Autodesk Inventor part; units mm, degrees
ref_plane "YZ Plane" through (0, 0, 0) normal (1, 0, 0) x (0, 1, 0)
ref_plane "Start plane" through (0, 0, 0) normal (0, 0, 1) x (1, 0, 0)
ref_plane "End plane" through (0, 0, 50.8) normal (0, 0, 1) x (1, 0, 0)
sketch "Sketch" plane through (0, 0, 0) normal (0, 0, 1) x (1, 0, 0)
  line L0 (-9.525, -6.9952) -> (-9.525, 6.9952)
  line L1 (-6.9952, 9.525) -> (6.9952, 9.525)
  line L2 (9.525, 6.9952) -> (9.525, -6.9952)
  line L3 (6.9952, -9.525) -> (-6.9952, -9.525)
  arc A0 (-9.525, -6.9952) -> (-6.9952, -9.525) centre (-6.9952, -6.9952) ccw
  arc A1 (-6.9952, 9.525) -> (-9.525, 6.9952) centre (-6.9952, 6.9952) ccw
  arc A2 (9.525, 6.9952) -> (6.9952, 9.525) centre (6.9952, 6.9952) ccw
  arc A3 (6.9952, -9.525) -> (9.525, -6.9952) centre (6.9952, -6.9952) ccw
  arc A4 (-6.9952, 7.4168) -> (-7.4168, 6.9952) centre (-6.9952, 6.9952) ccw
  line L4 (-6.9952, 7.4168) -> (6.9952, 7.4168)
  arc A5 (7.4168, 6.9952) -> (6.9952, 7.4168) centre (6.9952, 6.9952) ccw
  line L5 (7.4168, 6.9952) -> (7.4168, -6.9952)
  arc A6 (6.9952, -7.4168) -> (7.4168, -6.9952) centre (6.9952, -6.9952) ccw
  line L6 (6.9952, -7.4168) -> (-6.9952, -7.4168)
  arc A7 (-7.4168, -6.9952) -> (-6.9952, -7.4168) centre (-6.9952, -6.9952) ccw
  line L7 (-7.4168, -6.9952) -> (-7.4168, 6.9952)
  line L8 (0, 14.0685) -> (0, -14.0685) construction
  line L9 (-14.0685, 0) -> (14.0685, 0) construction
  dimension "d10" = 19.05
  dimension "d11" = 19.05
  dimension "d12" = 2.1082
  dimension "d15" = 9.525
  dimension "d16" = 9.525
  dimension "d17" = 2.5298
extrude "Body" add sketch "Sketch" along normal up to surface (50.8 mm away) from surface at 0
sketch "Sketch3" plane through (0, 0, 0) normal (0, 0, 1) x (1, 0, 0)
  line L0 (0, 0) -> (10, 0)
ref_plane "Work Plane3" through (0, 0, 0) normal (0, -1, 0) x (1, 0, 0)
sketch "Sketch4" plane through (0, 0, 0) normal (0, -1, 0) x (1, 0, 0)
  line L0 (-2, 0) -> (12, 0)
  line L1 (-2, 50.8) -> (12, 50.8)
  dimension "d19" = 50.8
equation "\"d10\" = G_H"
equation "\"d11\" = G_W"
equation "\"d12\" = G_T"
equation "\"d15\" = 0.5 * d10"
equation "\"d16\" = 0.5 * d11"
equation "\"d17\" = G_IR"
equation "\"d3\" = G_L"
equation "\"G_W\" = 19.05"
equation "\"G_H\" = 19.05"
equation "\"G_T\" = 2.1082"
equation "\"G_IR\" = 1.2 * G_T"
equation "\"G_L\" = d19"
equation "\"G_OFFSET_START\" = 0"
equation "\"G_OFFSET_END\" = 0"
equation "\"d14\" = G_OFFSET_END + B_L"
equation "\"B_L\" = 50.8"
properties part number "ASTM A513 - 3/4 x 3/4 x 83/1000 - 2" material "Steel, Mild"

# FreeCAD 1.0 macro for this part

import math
import FreeCAD as App
import Part
import Sketcher
Q = App.Units.Quantity

doc = App.newDocument("Part")
body = doc.addObject("PartDesign::Body", "Body")

# Sketch on XY plane
sketch1 = body.newObject("Sketcher::SketchObject", "Sketch")
sketch1.AttachmentSupport = (doc.getObject("XY_Plane"), [""])
sketch1.MapMode = "FlatFace"
sketch1.addGeometry([
    Part.LineSegment(App.Vector(-9.53, 7, 0), App.Vector(-9.53, -7, 0)),  # 0
    Part.ArcOfCircle(Part.Circle(App.Vector(-7, -7, 0), App.Vector(0, 0, 1), 2.53), math.radians(180), math.radians(270)),  # 1
    Part.LineSegment(App.Vector(-7, -9.53, 0), App.Vector(7, -9.53, 0)),  # 2
    Part.ArcOfCircle(Part.Circle(App.Vector(7, -7, 0), App.Vector(0, 0, 1), 2.53), math.radians(-90), math.radians(0)),  # 3
    Part.LineSegment(App.Vector(9.53, -7, 0), App.Vector(9.53, 7, 0)),  # 4
    Part.ArcOfCircle(Part.Circle(App.Vector(7, 7, 0), App.Vector(0, 0, 1), 2.53), math.radians(0), math.radians(90)),  # 5
    Part.LineSegment(App.Vector(7, 9.53, 0), App.Vector(-7, 9.53, 0)),  # 6
    Part.ArcOfCircle(Part.Circle(App.Vector(-7, 7, 0), App.Vector(0, 0, 1), 2.53), math.radians(90), math.radians(180)),  # 7
    Part.ArcOfCircle(Part.Circle(App.Vector(-7, 7, 0), App.Vector(0, 0, 1), 0.42), math.radians(90), math.radians(180)),  # 8
    Part.LineSegment(App.Vector(-7, 7.42, 0), App.Vector(7, 7.42, 0)),  # 9
    Part.ArcOfCircle(Part.Circle(App.Vector(7, 7, 0), App.Vector(0, 0, 1), 0.42), math.radians(0), math.radians(90)),  # 10
    Part.LineSegment(App.Vector(7.42, 7, 0), App.Vector(7.42, -7, 0)),  # 11
    Part.ArcOfCircle(Part.Circle(App.Vector(7, -7, 0), App.Vector(0, 0, 1), 0.42), math.radians(-90), math.radians(0)),  # 12
    Part.LineSegment(App.Vector(7, -7.42, 0), App.Vector(-7, -7.42, 0)),  # 13
    Part.ArcOfCircle(Part.Circle(App.Vector(-7, -7, 0), App.Vector(0, 0, 1), 0.42), math.radians(180), math.radians(270)),  # 14
    Part.LineSegment(App.Vector(-7.42, -7, 0), App.Vector(-7.42, 7, 0)),  # 15
], False)
sketch1.addConstraint([
    Sketcher.Constraint("Tangent", 0, 2, 1, 1),
    Sketcher.Constraint("Tangent", 1, 2, 2, 1),
    Sketcher.Constraint("Tangent", 2, 2, 3, 1),
    Sketcher.Constraint("Tangent", 3, 2, 4, 1),
    Sketcher.Constraint("Tangent", 4, 2, 5, 1),
    Sketcher.Constraint("Tangent", 5, 2, 6, 1),
    Sketcher.Constraint("Tangent", 6, 2, 7, 1),
    Sketcher.Constraint("Tangent", 7, 2, 0, 1),
    Sketcher.Constraint("Tangent", 8, 1, 9, 1),
    Sketcher.Constraint("Tangent", 9, 2, 10, 2),
    Sketcher.Constraint("Tangent", 10, 1, 11, 1),
    Sketcher.Constraint("Tangent", 11, 2, 12, 2),
    Sketcher.Constraint("Tangent", 12, 1, 13, 1),
    Sketcher.Constraint("Tangent", 13, 2, 14, 2),
    Sketcher.Constraint("Tangent", 14, 1, 15, 1),
    Sketcher.Constraint("Tangent", 15, 2, 8, 2),
    Sketcher.Constraint("Vertical", 0),
    Sketcher.Constraint("Horizontal", 2),
    Sketcher.Constraint("Vertical", 4),
    Sketcher.Constraint("Horizontal", 6),
    Sketcher.Constraint("Horizontal", 9),
    Sketcher.Constraint("Vertical", 11),
    Sketcher.Constraint("Horizontal", 13),
    Sketcher.Constraint("Vertical", 15),
    Sketcher.Constraint("Coincident", 8, 3, 7, 3),
    Sketcher.Constraint("Coincident", 10, 3, 5, 3),
    Sketcher.Constraint("Coincident", 12, 3, 3, 3),
    Sketcher.Constraint("Equal", 1, 3),
    Sketcher.Constraint("Equal", 3, 5),
    Sketcher.Constraint("Equal", 5, 7),
    Sketcher.Constraint("Equal", 12, 14),
    Sketcher.Constraint("Symmetric", 1, 3, 5, 3, -1, 1),
    Sketcher.Constraint("Equal", 13, 0),
    Sketcher.Constraint("Radius", 1, Q("0.0996 in")),
    Sketcher.Constraint("DistanceX", 0, 2, -1, 1, Q("0.375 in")),
    Sketcher.Constraint("DistanceY", 8, 1, 6, 2, Q("0.083 in")),
])
pad1 = body.newObject("PartDesign::Pad", "Pad")
pad1.Profile = sketch1
pad1.Length = Q("2 in")

doc.recompute()
